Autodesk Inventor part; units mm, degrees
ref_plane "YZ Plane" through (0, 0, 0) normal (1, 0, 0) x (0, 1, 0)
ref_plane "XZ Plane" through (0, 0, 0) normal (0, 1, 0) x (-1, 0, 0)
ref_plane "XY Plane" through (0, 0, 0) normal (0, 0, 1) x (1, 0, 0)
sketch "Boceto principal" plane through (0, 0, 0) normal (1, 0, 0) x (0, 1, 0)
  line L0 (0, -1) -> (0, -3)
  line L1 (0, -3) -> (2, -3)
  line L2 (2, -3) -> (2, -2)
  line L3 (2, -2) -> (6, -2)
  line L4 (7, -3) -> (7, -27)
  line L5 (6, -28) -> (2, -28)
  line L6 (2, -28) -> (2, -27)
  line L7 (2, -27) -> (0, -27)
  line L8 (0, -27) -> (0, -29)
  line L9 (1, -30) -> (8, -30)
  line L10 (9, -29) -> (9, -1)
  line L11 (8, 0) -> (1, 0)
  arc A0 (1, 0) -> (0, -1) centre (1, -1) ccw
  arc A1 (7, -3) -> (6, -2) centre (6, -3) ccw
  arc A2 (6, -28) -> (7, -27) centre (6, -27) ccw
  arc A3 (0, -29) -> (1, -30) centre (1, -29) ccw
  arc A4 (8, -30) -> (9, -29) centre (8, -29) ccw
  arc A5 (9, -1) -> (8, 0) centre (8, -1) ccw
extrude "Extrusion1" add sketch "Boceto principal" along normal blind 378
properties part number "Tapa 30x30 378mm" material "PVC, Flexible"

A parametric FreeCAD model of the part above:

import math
import FreeCAD as App
import Part
import Sketcher
from FreeCAD import Vector

doc = App.newDocument("Part")
body = doc.addObject("PartDesign::Body", "Body")

# Sketch on YZ plane
sketch1 = body.newObject("Sketcher::SketchObject", "Sketch")
sketch1.AttachmentSupport = (doc.getObject("YZ_Plane"), [""])
sketch1.MapMode = "FlatFace"
sketch1.addGeometry(Part.ArcOfCircle(Part.Circle(Vector(1, -1, 0), Vector(0, 0, 1), 1), math.radians(90), math.radians(180)), False)
sketch1.addGeometry(Part.LineSegment(Vector(0, -1, 0), Vector(0, -3, 0)), False)
sketch1.addGeometry(Part.LineSegment(Vector(0, -3, 0), Vector(2, -3, 0)), False)
sketch1.addGeometry(Part.LineSegment(Vector(2, -3, 0), Vector(2, -2, 0)), False)
sketch1.addGeometry(Part.LineSegment(Vector(2, -2, 0), Vector(6, -2, 0)), False)
sketch1.addGeometry(Part.ArcOfCircle(Part.Circle(Vector(6, -3, 0), Vector(0, 0, 1), 1), math.radians(0), math.radians(90)), False)
sketch1.addGeometry(Part.LineSegment(Vector(7, -3, 0), Vector(7, -27, 0)), False)
sketch1.addGeometry(Part.ArcOfCircle(Part.Circle(Vector(6, -27, 0), Vector(0, 0, 1), 1), math.radians(-90), math.radians(0)), False)
sketch1.addGeometry(Part.LineSegment(Vector(6, -28, 0), Vector(2, -28, 0)), False)
sketch1.addGeometry(Part.LineSegment(Vector(2, -28, 0), Vector(2, -27, 0)), False)
sketch1.addGeometry(Part.LineSegment(Vector(2, -27, 0), Vector(0, -27, 0)), False)
sketch1.addGeometry(Part.LineSegment(Vector(0, -27, 0), Vector(0, -29, 0)), False)
sketch1.addGeometry(Part.ArcOfCircle(Part.Circle(Vector(1, -29, 0), Vector(0, 0, 1), 1), math.radians(180), math.radians(270)), False)
sketch1.addGeometry(Part.LineSegment(Vector(1, -30, 0), Vector(8, -30, 0)), False)
sketch1.addGeometry(Part.ArcOfCircle(Part.Circle(Vector(8, -29, 0), Vector(0, 0, 1), 1), math.radians(-90), math.radians(0)), False)
sketch1.addGeometry(Part.LineSegment(Vector(9, -29, 0), Vector(9, -1, 0)), False)
sketch1.addGeometry(Part.ArcOfCircle(Part.Circle(Vector(8, -1, 0), Vector(0, 0, 1), 1), math.radians(0), math.radians(90)), False)
sketch1.addGeometry(Part.LineSegment(Vector(8, 0, 0), Vector(1, 0, 0)), False)
sketch1.addConstraint(Sketcher.Constraint("Tangent", 0, 2, 1, 1))
sketch1.addConstraint(Sketcher.Constraint("Coincident", 1, 2, 2, 1))
sketch1.addConstraint(Sketcher.Constraint("Coincident", 2, 2, 3, 1))
sketch1.addConstraint(Sketcher.Constraint("Coincident", 3, 2, 4, 1))
sketch1.addConstraint(Sketcher.Constraint("Tangent", 4, 2, 5, 2))
sketch1.addConstraint(Sketcher.Constraint("Tangent", 5, 1, 6, 1))
sketch1.addConstraint(Sketcher.Constraint("Tangent", 6, 2, 7, 2))
sketch1.addConstraint(Sketcher.Constraint("Tangent", 7, 1, 8, 1))
sketch1.addConstraint(Sketcher.Constraint("Coincident", 8, 2, 9, 1))
sketch1.addConstraint(Sketcher.Constraint("Coincident", 9, 2, 10, 1))
sketch1.addConstraint(Sketcher.Constraint("Coincident", 10, 2, 11, 1))
sketch1.addConstraint(Sketcher.Constraint("Tangent", 11, 2, 12, 1))
sketch1.addConstraint(Sketcher.Constraint("Tangent", 12, 2, 13, 1))
sketch1.addConstraint(Sketcher.Constraint("Tangent", 13, 2, 14, 1))
sketch1.addConstraint(Sketcher.Constraint("Tangent", 14, 2, 15, 1))
sketch1.addConstraint(Sketcher.Constraint("Tangent", 15, 2, 16, 1))
sketch1.addConstraint(Sketcher.Constraint("Tangent", 16, 2, 17, 1))
sketch1.addConstraint(Sketcher.Constraint("Tangent", 17, 2, 0, 1))
sketch1.addConstraint(Sketcher.Constraint("Vertical", 1))
sketch1.addConstraint(Sketcher.Constraint("Horizontal", 2))
sketch1.addConstraint(Sketcher.Constraint("Vertical", 3))
sketch1.addConstraint(Sketcher.Constraint("Horizontal", 4))
sketch1.addConstraint(Sketcher.Constraint("Vertical", 6))
sketch1.addConstraint(Sketcher.Constraint("Horizontal", 8))
sketch1.addConstraint(Sketcher.Constraint("Vertical", 9))
sketch1.addConstraint(Sketcher.Constraint("Horizontal", 10))
sketch1.addConstraint(Sketcher.Constraint("Vertical", 11))
sketch1.addConstraint(Sketcher.Constraint("Horizontal", 13))
sketch1.addConstraint(Sketcher.Constraint("Vertical", 15))
sketch1.addConstraint(Sketcher.Constraint("Horizontal", 17))
sketch1.addConstraint(Sketcher.Constraint("Equal", 0, 5))
sketch1.addConstraint(Sketcher.Constraint("Equal", 5, 7))
sketch1.addConstraint(Sketcher.Constraint("Equal", 7, 12))
sketch1.addConstraint(Sketcher.Constraint("Equal", 12, 14))
sketch1.addConstraint(Sketcher.Constraint("Equal", 14, 16))
sketch1.addConstraint(Sketcher.Constraint("PointOnObject", 0, 2, -2))
sketch1.addConstraint(Sketcher.Constraint("PointOnObject", 10, 2, -2))
sketch1.addConstraint(Sketcher.Constraint("PointOnObject", 16, 2, -1))
sketch1.addConstraint(Sketcher.Constraint("Horizontal", 5, 3, 1, 2))
sketch1.addConstraint(Sketcher.Constraint("Horizontal", 6, 2, 9, 2))
sketch1.addConstraint(Sketcher.Constraint("Vertical", 3, 2, 8, 2))
sketch1.addConstraint(Sketcher.Constraint("Equal", 10, 1))
sketch1.addConstraint(Sketcher.Constraint("Equal", 1, 11))
sketch1.addConstraint(Sketcher.Constraint("Radius", 0, 1.0))
sketch1.addConstraint(Sketcher.Constraint("DistanceX", 2, 1, 2, 2, 2.0))
sketch1.addConstraint(Sketcher.Constraint("DistanceX", 4, 1, 4, 2, 4.0))
sketch1.addConstraint(Sketcher.Constraint("DistanceX", 13, 1, 13, 2, 7.0))
sketch1.addConstraint(Sketcher.Constraint("DistanceY", 6, 2, 6, 1, 24.0))
pad1 = body.newObject("PartDesign::Pad", "Pad")
pad1.Profile = sketch1
pad1.Length = 378

doc.recompute()
